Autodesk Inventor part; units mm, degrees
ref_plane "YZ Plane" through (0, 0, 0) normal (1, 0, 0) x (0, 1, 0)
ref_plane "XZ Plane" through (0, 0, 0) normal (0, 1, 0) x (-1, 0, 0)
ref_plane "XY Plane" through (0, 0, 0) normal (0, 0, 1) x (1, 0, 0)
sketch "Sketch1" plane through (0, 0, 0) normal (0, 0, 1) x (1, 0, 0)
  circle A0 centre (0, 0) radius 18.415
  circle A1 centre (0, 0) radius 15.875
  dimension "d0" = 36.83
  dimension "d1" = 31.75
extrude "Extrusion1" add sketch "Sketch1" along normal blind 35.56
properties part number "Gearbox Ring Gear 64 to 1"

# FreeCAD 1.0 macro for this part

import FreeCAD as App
import Part
import Sketcher
from FreeCAD import Vector
Q = App.Units.Quantity

doc = App.newDocument("Part")
body = doc.addObject("PartDesign::Body", "Body")

# Sketch on XY plane
sketch1 = body.newObject("Sketcher::SketchObject", "Sketch")
sketch1.AttachmentSupport = (doc.getObject("XY_Plane"), [""])
sketch1.MapMode = "FlatFace"
sketch1.addGeometry(Part.Circle(Vector(0, 0, 0), Vector(0, 0, 1), 18), False)
sketch1.addGeometry(Part.Circle(Vector(0, 0, 0), Vector(0, 0, 1), 16), False)
sketch1.addConstraint(Sketcher.Constraint("Coincident", 0, 3, -1, 1))
sketch1.addConstraint(Sketcher.Constraint("Coincident", 1, 3, -1, 1))
sketch1.addConstraint(Sketcher.Constraint("Diameter", 0, Q("1.45 in")))
sketch1.addConstraint(Sketcher.Constraint("Diameter", 1, Q("1.25 in")))
pad1 = body.newObject("PartDesign::Pad", "Pad")
pad1.Profile = sketch1
pad1.Length = Q("1.4 in")

doc.recompute()
